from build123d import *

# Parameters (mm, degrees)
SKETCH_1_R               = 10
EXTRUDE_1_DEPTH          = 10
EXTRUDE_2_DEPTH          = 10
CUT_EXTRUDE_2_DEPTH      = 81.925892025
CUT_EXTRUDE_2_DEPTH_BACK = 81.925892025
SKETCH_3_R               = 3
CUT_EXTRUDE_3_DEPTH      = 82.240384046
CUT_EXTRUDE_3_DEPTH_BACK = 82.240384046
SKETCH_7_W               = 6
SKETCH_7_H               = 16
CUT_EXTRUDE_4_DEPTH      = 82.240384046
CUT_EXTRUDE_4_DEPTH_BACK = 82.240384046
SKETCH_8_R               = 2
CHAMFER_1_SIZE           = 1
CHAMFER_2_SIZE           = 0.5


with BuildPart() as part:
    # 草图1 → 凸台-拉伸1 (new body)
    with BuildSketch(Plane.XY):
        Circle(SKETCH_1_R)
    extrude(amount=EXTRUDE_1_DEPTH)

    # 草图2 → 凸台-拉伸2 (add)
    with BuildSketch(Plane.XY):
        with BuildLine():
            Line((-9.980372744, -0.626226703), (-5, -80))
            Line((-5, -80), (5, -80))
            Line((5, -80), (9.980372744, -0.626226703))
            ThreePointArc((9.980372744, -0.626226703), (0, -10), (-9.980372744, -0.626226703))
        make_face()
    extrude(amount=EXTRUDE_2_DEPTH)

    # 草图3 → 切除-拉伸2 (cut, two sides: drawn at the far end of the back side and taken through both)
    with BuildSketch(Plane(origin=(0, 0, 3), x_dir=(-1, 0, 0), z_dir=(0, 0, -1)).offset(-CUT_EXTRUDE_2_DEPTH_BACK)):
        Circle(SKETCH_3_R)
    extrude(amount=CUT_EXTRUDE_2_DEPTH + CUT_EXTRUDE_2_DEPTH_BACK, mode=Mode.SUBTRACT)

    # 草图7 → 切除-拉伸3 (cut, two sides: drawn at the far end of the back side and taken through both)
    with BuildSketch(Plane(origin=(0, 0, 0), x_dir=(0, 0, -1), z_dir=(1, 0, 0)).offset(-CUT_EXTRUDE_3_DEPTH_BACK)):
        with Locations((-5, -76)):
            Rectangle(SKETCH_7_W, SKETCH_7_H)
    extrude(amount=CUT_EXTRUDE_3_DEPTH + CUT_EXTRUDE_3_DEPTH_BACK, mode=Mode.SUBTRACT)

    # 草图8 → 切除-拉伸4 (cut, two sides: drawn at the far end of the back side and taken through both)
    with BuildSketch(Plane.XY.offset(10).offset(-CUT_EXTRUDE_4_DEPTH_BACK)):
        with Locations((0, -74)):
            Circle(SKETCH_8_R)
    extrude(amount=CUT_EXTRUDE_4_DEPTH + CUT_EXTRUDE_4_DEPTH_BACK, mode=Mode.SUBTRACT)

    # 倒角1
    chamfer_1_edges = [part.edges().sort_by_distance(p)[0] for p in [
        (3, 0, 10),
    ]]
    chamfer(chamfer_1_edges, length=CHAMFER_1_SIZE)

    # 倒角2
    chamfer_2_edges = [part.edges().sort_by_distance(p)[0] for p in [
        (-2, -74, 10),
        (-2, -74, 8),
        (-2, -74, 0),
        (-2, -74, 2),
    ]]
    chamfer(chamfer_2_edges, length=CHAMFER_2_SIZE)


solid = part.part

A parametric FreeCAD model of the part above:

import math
import FreeCAD as App
import Part
import Sketcher


def edges_at(feature, points):
    """Names of the edges that pass closest to the given points."""
    edges = feature.Shape.Edges
    near = lambda p: min(range(len(edges)), key=lambda i: edges[i].distToShape(Part.Vertex(*p))[0])
    return sorted({f"Edge{near(p) + 1}" for p in points})

doc = App.newDocument("Part")
params = doc.addObject("Spreadsheet::Sheet", "Params")
for row, (alias, value) in enumerate([
    ("sketch1_diameter", "20 mm"),
    ("pad1_length", "10 mm"),
    ("sketch2_radius", "10 mm"),
    ("sketch2_width", "10 mm"),
    ("pad2_length", "10 mm"),
    ("sketch3_diameter", "6 mm"),
    ("sketch4_width", "16 mm"),
    ("sketch4_height", "6 mm"),
    ("sketch5_diameter", "4 mm"),
    ("chamfer_size", "1 mm"),
    ("chamfer2_size", "0.5 mm"),
], start=1):
    params.set(f"A{row}", alias)
    params.set(f"B{row}", "=" + value)
    params.setAlias(f"B{row}", alias)

body = doc.addObject("PartDesign::Body", "Body")

# Sketch on XY plane
sketch1 = body.newObject("Sketcher::SketchObject", "Sketch")
sketch1.AttachmentSupport = (doc.getObject("XY_Plane"), [""])
sketch1.MapMode = "FlatFace"
sketch1.addGeometry(Part.Circle(App.Vector(0, 0, 0), App.Vector(0, 0, 1), 10), False)
sketch1.addConstraint([
    Sketcher.Constraint("Coincident", 0, 3, -1, 1),
    Sketcher.Constraint("Diameter", 0, 20.0),
])
sketch1.setExpression("Constraints[1]", "Params.sketch1_diameter")
pad1 = body.newObject("PartDesign::Pad", "Pad")
pad1.Profile = sketch1
pad1.setExpression("Length", "Params.pad1_length")

# Sketch on XY plane
sketch2 = body.newObject("Sketcher::SketchObject", "Sketch001")
sketch2.AttachmentSupport = (doc.getObject("XY_Plane"), [""])
sketch2.MapMode = "FlatFace"
sketch2.addGeometry([
    Part.LineSegment(App.Vector(-10, -1, 0), App.Vector(-5, -80, 0)),
    Part.LineSegment(App.Vector(-5, -80, 0), App.Vector(5, -80, 0)),
    Part.LineSegment(App.Vector(5, -80, 0), App.Vector(10, -1, 0)),
    Part.ArcOfCircle(Part.Circle(App.Vector(0, 0, 0), App.Vector(0, 0, 1), 10), math.radians(-176), math.radians(-4)),
], False)
sketch2.addConstraint([
    Sketcher.Constraint("Coincident", 0, 2, 1, 1),
    Sketcher.Constraint("Coincident", 1, 2, 2, 1),
    Sketcher.Constraint("Tangent", 2, 2, 3, 2),
    Sketcher.Constraint("Tangent", 3, 1, 0, 1),
    Sketcher.Constraint("Horizontal", 1),
    Sketcher.Constraint("Coincident", 3, 3, -1, 1),
    Sketcher.Constraint("Horizontal", 2, 2, 3, 1),
    Sketcher.Constraint("Radius", 3, 10.0),
    Sketcher.Constraint("DistanceX", 1, 1, 1, 2, 10.0),
    Sketcher.Constraint("DistanceY", 0, 2, -1, 1, 80.0),
])
sketch2.setExpression("Constraints[7]", "Params.sketch2_radius")
sketch2.setExpression("Constraints[8]", "Params.sketch2_width")
pad2 = body.newObject("PartDesign::Pad", "Pad001")
pad2.Profile = sketch2
pad2.setExpression("Length", "Params.pad2_length")

# Sketch on XY plane
sketch3 = body.newObject("Sketcher::SketchObject", "Sketch002")
sketch3.AttachmentSupport = (doc.getObject("XY_Plane"), [""])
sketch3.MapMode = "FlatFace"
sketch3.AttachmentOffset = App.Placement(App.Vector(0, 0, 3), App.Rotation())
sketch3.addGeometry(Part.Circle(App.Vector(0, 0, 0), App.Vector(0, 0, 1), 3), False)
sketch3.addConstraint([
    Sketcher.Constraint("Coincident", 0, 3, -1, 1),
    Sketcher.Constraint("Diameter", 0, 6.0),
])
sketch3.setExpression("Constraints[1]", "Params.sketch3_diameter")
pocket1 = body.newObject("PartDesign::Pocket", "Pocket")
pocket1.Profile = sketch3
pocket1.Type = "ThroughAll"
pocket1.Midplane = True

# Sketch on YZ plane
sketch4 = body.newObject("Sketcher::SketchObject", "Sketch003")
sketch4.AttachmentSupport = (doc.getObject("YZ_Plane"), [""])
sketch4.MapMode = "FlatFace"
sketch4.addGeometry([
    Part.LineSegment(App.Vector(-68, 8, 0), App.Vector(-84, 8, 0)),
    Part.LineSegment(App.Vector(-84, 8, 0), App.Vector(-84, 2, 0)),
    Part.LineSegment(App.Vector(-84, 2, 0), App.Vector(-68, 2, 0)),
    Part.LineSegment(App.Vector(-68, 2, 0), App.Vector(-68, 8, 0)),
], False)
sketch4.addConstraint([
    Sketcher.Constraint("Coincident", 0, 2, 1, 1),
    Sketcher.Constraint("Coincident", 1, 2, 2, 1),
    Sketcher.Constraint("Coincident", 2, 2, 3, 1),
    Sketcher.Constraint("Coincident", 3, 2, 0, 1),
    Sketcher.Constraint("Horizontal", 0),
    Sketcher.Constraint("Vertical", 1),
    Sketcher.Constraint("Horizontal", 2),
    Sketcher.Constraint("Vertical", 3),
    Sketcher.Constraint("DistanceX", 0, 2, 0, 1, 16.0),
    Sketcher.Constraint("DistanceY", 1, 2, 1, 1, 6.0),
    Sketcher.Constraint("DistanceX", 0, 2, -1, 1, 84.0),
    Sketcher.Constraint("DistanceY", -1, 1, 0, 2, 8.0),
])
sketch4.setExpression("Constraints[8]", "Params.sketch4_width")
sketch4.setExpression("Constraints[9]", "Params.sketch4_height")
pocket2 = body.newObject("PartDesign::Pocket", "Pocket001")
pocket2.Profile = sketch4
pocket2.Type = "ThroughAll"
pocket2.Midplane = True

# Sketch on XY plane
sketch5 = body.newObject("Sketcher::SketchObject", "Sketch004")
sketch5.AttachmentSupport = (doc.getObject("XY_Plane"), [""])
sketch5.MapMode = "FlatFace"
sketch5.AttachmentOffset = App.Placement(App.Vector(0, 0, 10), App.Rotation())
sketch5.addGeometry(Part.Circle(App.Vector(0, -74, 0), App.Vector(0, 0, 1), 2), False)
sketch5.addConstraint([
    Sketcher.Constraint("PointOnObject", 0, 3, -2),
    Sketcher.Constraint("Diameter", 0, 4.0),
    Sketcher.Constraint("DistanceY", 0, 3, -1, 1, 74.0),
])
sketch5.setExpression("Constraints[1]", "Params.sketch5_diameter")
pocket3 = body.newObject("PartDesign::Pocket", "Pocket002")
pocket3.Profile = sketch5
pocket3.Type = "ThroughAll"
pocket3.Midplane = True
doc.recompute()

chamfer = body.newObject("PartDesign::Chamfer", "Chamfer")
chamfer.Base = (pocket3, edges_at(pocket3, [(3, 0, 10)]))
chamfer.setExpression("Size", "Params.chamfer_size")
doc.recompute()

chamfer2 = body.newObject("PartDesign::Chamfer", "Chamfer001")
chamfer2.Base = (chamfer, edges_at(chamfer, [
    (-2, -74, 10),
    (-2, -74, 8),
    (-2, -74, 0),
    (-2, -74, 2),
]))
chamfer2.setExpression("Size", "Params.chamfer2_size")

doc.recompute()
